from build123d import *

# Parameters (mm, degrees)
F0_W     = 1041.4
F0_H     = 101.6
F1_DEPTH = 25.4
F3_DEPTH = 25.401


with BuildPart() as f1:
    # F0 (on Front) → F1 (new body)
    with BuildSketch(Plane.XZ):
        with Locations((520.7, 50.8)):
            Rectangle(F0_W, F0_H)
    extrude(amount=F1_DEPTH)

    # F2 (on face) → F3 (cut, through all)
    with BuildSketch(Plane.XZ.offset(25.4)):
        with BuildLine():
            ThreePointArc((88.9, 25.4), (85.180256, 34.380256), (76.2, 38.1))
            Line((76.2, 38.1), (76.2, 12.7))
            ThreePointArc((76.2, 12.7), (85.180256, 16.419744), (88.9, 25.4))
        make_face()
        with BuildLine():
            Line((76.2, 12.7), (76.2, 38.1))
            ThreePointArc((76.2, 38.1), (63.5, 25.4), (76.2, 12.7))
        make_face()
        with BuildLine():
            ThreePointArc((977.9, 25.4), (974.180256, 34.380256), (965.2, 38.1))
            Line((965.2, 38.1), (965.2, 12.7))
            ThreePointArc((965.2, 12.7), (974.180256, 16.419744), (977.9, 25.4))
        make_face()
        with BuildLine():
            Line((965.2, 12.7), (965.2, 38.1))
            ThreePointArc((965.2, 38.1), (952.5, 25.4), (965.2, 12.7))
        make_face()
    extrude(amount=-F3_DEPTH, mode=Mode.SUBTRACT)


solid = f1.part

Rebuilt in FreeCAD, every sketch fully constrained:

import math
import FreeCAD as App
import Part
import Sketcher
from FreeCAD import Vector
Q = App.Units.Quantity

doc = App.newDocument("Part")
params = doc.addObject("Spreadsheet::Sheet", "Params")
for row, (alias, value) in enumerate([
    ("sketch1_width", "41 in"),
    ("sketch1_height", "4 in"),
    ("pad1_length", "1 in"),
    ("sketch2_radius", "0.5 in"),
], start=1):
    params.set(f"A{row}", alias)
    params.set(f"B{row}", "=" + value)
    params.setAlias(f"B{row}", alias)

body = doc.addObject("PartDesign::Body", "Body")

# Sketch on XZ plane
sketch1 = body.newObject("Sketcher::SketchObject", "Sketch")
sketch1.AttachmentSupport = (doc.getObject("XZ_Plane"), [""])
sketch1.MapMode = "FlatFace"
sketch1.addGeometry(Part.LineSegment(Vector(0, 101.6, 0), Vector(0, 0, 0)), False)
sketch1.addGeometry(Part.LineSegment(Vector(0, 0, 0), Vector(1041.4, 0, 0)), False)
sketch1.addGeometry(Part.LineSegment(Vector(1041.4, 0, 0), Vector(1041.4, 101.6, 0)), False)
sketch1.addGeometry(Part.LineSegment(Vector(1041.4, 101.6, 0), Vector(0, 101.6, 0)), False)
sketch1.addConstraint(Sketcher.Constraint("Coincident", 0, 2, 1, 1))
sketch1.addConstraint(Sketcher.Constraint("Coincident", 1, 2, 2, 1))
sketch1.addConstraint(Sketcher.Constraint("Coincident", 2, 2, 3, 1))
sketch1.addConstraint(Sketcher.Constraint("Coincident", 3, 2, 0, 1))
sketch1.addConstraint(Sketcher.Constraint("Vertical", 0))
sketch1.addConstraint(Sketcher.Constraint("Horizontal", 1))
sketch1.addConstraint(Sketcher.Constraint("Vertical", 2))
sketch1.addConstraint(Sketcher.Constraint("Horizontal", 3))
sketch1.addConstraint(Sketcher.Constraint("Coincident", 0, 2, -1, 1))
sketch1.addConstraint(Sketcher.Constraint("DistanceX", 1, 1, 1, 2, Q("41 in")))
sketch1.addConstraint(Sketcher.Constraint("DistanceY", 0, 2, 0, 1, Q("4 in")))
sketch1.setExpression("Constraints[9]", "Params.sketch1_width")
sketch1.setExpression("Constraints[10]", "Params.sketch1_height")
pad1 = body.newObject("PartDesign::Pad", "Pad")
pad1.Profile = sketch1
pad1.setExpression("Length", "Params.pad1_length")

# Sketch on XZ plane
sketch2 = body.newObject("Sketcher::SketchObject", "Sketch001")
sketch2.AttachmentSupport = (doc.getObject("XZ_Plane"), [""])
sketch2.MapMode = "FlatFace"
sketch2.AttachmentOffset = App.Placement(Vector(0, 0, 1 * 25.4), App.Rotation())
sketch2.addGeometry(Part.ArcOfCircle(Part.Circle(Vector(76.2, 25.4, 0), Vector(0, 0, 1), 12.7), math.radians(0.000002), math.radians(89.999998)), False)
sketch2.addGeometry(Part.ArcOfCircle(Part.Circle(Vector(76.2, 25.4, 0), Vector(0, 0, 1), 12.7), math.radians(90), math.radians(270)), False)
sketch2.addGeometry(Part.ArcOfCircle(Part.Circle(Vector(76.2, 25.4, 0), Vector(0, 0, 1), 12.7), math.radians(-89.999998), math.radians(-0.000002)), False)
sketch2.addGeometry(Part.ArcOfCircle(Part.Circle(Vector(965.2, 25.4, 0), Vector(0, 0, 1), 12.7), math.radians(0.000002), math.radians(89.999998)), False)
sketch2.addGeometry(Part.ArcOfCircle(Part.Circle(Vector(965.2, 25.4, 0), Vector(0, 0, 1), 12.7), math.radians(90), math.radians(270)), False)
sketch2.addGeometry(Part.ArcOfCircle(Part.Circle(Vector(965.2, 25.4, 0), Vector(0, 0, 1), 12.7), math.radians(-89.999998), math.radians(-0.000002)), False)
sketch2.addConstraint(Sketcher.Constraint("Tangent", 0, 2, 1, 1))
sketch2.addConstraint(Sketcher.Constraint("Tangent", 1, 2, 2, 1))
sketch2.addConstraint(Sketcher.Constraint("Tangent", 2, 2, 0, 1))
sketch2.addConstraint(Sketcher.Constraint("Tangent", 3, 2, 4, 1))
sketch2.addConstraint(Sketcher.Constraint("Tangent", 4, 2, 5, 1))
sketch2.addConstraint(Sketcher.Constraint("Tangent", 5, 2, 3, 1))
sketch2.addConstraint(Sketcher.Constraint("Equal", 2, 3))
sketch2.addConstraint(Sketcher.Constraint("Horizontal", 2, 3, 3, 3))
sketch2.addConstraint(Sketcher.Constraint("Horizontal", 5, 3, 2, 2))
sketch2.addConstraint(Sketcher.Constraint("Horizontal", 2, 2, 5, 2))
sketch2.addConstraint(Sketcher.Constraint("Vertical", 2, 3, 0, 2))
sketch2.addConstraint(Sketcher.Constraint("Vertical", 0, 2, 1, 2))
sketch2.addConstraint(Sketcher.Constraint("Vertical", 5, 3, 3, 2))
sketch2.addConstraint(Sketcher.Constraint("Vertical", 3, 2, 4, 2))
sketch2.addConstraint(Sketcher.Constraint("Radius", 0, Q("0.5 in")))
sketch2.addConstraint(Sketcher.Constraint("DistanceX", -1, 1, 0, 3, Q("3 in")))
sketch2.addConstraint(Sketcher.Constraint("DistanceY", -1, 1, 0, 3, Q("1 in")))
sketch2.addConstraint(Sketcher.Constraint("DistanceX", -1, 1, 3, 3, Q("38 in")))
sketch2.setExpression("Constraints[14]", "Params.sketch2_radius")
pocket1 = body.newObject("PartDesign::Pocket", "Pocket")
pocket1.Profile = sketch2
pocket1.Type = "ThroughAll"

doc.recompute()
